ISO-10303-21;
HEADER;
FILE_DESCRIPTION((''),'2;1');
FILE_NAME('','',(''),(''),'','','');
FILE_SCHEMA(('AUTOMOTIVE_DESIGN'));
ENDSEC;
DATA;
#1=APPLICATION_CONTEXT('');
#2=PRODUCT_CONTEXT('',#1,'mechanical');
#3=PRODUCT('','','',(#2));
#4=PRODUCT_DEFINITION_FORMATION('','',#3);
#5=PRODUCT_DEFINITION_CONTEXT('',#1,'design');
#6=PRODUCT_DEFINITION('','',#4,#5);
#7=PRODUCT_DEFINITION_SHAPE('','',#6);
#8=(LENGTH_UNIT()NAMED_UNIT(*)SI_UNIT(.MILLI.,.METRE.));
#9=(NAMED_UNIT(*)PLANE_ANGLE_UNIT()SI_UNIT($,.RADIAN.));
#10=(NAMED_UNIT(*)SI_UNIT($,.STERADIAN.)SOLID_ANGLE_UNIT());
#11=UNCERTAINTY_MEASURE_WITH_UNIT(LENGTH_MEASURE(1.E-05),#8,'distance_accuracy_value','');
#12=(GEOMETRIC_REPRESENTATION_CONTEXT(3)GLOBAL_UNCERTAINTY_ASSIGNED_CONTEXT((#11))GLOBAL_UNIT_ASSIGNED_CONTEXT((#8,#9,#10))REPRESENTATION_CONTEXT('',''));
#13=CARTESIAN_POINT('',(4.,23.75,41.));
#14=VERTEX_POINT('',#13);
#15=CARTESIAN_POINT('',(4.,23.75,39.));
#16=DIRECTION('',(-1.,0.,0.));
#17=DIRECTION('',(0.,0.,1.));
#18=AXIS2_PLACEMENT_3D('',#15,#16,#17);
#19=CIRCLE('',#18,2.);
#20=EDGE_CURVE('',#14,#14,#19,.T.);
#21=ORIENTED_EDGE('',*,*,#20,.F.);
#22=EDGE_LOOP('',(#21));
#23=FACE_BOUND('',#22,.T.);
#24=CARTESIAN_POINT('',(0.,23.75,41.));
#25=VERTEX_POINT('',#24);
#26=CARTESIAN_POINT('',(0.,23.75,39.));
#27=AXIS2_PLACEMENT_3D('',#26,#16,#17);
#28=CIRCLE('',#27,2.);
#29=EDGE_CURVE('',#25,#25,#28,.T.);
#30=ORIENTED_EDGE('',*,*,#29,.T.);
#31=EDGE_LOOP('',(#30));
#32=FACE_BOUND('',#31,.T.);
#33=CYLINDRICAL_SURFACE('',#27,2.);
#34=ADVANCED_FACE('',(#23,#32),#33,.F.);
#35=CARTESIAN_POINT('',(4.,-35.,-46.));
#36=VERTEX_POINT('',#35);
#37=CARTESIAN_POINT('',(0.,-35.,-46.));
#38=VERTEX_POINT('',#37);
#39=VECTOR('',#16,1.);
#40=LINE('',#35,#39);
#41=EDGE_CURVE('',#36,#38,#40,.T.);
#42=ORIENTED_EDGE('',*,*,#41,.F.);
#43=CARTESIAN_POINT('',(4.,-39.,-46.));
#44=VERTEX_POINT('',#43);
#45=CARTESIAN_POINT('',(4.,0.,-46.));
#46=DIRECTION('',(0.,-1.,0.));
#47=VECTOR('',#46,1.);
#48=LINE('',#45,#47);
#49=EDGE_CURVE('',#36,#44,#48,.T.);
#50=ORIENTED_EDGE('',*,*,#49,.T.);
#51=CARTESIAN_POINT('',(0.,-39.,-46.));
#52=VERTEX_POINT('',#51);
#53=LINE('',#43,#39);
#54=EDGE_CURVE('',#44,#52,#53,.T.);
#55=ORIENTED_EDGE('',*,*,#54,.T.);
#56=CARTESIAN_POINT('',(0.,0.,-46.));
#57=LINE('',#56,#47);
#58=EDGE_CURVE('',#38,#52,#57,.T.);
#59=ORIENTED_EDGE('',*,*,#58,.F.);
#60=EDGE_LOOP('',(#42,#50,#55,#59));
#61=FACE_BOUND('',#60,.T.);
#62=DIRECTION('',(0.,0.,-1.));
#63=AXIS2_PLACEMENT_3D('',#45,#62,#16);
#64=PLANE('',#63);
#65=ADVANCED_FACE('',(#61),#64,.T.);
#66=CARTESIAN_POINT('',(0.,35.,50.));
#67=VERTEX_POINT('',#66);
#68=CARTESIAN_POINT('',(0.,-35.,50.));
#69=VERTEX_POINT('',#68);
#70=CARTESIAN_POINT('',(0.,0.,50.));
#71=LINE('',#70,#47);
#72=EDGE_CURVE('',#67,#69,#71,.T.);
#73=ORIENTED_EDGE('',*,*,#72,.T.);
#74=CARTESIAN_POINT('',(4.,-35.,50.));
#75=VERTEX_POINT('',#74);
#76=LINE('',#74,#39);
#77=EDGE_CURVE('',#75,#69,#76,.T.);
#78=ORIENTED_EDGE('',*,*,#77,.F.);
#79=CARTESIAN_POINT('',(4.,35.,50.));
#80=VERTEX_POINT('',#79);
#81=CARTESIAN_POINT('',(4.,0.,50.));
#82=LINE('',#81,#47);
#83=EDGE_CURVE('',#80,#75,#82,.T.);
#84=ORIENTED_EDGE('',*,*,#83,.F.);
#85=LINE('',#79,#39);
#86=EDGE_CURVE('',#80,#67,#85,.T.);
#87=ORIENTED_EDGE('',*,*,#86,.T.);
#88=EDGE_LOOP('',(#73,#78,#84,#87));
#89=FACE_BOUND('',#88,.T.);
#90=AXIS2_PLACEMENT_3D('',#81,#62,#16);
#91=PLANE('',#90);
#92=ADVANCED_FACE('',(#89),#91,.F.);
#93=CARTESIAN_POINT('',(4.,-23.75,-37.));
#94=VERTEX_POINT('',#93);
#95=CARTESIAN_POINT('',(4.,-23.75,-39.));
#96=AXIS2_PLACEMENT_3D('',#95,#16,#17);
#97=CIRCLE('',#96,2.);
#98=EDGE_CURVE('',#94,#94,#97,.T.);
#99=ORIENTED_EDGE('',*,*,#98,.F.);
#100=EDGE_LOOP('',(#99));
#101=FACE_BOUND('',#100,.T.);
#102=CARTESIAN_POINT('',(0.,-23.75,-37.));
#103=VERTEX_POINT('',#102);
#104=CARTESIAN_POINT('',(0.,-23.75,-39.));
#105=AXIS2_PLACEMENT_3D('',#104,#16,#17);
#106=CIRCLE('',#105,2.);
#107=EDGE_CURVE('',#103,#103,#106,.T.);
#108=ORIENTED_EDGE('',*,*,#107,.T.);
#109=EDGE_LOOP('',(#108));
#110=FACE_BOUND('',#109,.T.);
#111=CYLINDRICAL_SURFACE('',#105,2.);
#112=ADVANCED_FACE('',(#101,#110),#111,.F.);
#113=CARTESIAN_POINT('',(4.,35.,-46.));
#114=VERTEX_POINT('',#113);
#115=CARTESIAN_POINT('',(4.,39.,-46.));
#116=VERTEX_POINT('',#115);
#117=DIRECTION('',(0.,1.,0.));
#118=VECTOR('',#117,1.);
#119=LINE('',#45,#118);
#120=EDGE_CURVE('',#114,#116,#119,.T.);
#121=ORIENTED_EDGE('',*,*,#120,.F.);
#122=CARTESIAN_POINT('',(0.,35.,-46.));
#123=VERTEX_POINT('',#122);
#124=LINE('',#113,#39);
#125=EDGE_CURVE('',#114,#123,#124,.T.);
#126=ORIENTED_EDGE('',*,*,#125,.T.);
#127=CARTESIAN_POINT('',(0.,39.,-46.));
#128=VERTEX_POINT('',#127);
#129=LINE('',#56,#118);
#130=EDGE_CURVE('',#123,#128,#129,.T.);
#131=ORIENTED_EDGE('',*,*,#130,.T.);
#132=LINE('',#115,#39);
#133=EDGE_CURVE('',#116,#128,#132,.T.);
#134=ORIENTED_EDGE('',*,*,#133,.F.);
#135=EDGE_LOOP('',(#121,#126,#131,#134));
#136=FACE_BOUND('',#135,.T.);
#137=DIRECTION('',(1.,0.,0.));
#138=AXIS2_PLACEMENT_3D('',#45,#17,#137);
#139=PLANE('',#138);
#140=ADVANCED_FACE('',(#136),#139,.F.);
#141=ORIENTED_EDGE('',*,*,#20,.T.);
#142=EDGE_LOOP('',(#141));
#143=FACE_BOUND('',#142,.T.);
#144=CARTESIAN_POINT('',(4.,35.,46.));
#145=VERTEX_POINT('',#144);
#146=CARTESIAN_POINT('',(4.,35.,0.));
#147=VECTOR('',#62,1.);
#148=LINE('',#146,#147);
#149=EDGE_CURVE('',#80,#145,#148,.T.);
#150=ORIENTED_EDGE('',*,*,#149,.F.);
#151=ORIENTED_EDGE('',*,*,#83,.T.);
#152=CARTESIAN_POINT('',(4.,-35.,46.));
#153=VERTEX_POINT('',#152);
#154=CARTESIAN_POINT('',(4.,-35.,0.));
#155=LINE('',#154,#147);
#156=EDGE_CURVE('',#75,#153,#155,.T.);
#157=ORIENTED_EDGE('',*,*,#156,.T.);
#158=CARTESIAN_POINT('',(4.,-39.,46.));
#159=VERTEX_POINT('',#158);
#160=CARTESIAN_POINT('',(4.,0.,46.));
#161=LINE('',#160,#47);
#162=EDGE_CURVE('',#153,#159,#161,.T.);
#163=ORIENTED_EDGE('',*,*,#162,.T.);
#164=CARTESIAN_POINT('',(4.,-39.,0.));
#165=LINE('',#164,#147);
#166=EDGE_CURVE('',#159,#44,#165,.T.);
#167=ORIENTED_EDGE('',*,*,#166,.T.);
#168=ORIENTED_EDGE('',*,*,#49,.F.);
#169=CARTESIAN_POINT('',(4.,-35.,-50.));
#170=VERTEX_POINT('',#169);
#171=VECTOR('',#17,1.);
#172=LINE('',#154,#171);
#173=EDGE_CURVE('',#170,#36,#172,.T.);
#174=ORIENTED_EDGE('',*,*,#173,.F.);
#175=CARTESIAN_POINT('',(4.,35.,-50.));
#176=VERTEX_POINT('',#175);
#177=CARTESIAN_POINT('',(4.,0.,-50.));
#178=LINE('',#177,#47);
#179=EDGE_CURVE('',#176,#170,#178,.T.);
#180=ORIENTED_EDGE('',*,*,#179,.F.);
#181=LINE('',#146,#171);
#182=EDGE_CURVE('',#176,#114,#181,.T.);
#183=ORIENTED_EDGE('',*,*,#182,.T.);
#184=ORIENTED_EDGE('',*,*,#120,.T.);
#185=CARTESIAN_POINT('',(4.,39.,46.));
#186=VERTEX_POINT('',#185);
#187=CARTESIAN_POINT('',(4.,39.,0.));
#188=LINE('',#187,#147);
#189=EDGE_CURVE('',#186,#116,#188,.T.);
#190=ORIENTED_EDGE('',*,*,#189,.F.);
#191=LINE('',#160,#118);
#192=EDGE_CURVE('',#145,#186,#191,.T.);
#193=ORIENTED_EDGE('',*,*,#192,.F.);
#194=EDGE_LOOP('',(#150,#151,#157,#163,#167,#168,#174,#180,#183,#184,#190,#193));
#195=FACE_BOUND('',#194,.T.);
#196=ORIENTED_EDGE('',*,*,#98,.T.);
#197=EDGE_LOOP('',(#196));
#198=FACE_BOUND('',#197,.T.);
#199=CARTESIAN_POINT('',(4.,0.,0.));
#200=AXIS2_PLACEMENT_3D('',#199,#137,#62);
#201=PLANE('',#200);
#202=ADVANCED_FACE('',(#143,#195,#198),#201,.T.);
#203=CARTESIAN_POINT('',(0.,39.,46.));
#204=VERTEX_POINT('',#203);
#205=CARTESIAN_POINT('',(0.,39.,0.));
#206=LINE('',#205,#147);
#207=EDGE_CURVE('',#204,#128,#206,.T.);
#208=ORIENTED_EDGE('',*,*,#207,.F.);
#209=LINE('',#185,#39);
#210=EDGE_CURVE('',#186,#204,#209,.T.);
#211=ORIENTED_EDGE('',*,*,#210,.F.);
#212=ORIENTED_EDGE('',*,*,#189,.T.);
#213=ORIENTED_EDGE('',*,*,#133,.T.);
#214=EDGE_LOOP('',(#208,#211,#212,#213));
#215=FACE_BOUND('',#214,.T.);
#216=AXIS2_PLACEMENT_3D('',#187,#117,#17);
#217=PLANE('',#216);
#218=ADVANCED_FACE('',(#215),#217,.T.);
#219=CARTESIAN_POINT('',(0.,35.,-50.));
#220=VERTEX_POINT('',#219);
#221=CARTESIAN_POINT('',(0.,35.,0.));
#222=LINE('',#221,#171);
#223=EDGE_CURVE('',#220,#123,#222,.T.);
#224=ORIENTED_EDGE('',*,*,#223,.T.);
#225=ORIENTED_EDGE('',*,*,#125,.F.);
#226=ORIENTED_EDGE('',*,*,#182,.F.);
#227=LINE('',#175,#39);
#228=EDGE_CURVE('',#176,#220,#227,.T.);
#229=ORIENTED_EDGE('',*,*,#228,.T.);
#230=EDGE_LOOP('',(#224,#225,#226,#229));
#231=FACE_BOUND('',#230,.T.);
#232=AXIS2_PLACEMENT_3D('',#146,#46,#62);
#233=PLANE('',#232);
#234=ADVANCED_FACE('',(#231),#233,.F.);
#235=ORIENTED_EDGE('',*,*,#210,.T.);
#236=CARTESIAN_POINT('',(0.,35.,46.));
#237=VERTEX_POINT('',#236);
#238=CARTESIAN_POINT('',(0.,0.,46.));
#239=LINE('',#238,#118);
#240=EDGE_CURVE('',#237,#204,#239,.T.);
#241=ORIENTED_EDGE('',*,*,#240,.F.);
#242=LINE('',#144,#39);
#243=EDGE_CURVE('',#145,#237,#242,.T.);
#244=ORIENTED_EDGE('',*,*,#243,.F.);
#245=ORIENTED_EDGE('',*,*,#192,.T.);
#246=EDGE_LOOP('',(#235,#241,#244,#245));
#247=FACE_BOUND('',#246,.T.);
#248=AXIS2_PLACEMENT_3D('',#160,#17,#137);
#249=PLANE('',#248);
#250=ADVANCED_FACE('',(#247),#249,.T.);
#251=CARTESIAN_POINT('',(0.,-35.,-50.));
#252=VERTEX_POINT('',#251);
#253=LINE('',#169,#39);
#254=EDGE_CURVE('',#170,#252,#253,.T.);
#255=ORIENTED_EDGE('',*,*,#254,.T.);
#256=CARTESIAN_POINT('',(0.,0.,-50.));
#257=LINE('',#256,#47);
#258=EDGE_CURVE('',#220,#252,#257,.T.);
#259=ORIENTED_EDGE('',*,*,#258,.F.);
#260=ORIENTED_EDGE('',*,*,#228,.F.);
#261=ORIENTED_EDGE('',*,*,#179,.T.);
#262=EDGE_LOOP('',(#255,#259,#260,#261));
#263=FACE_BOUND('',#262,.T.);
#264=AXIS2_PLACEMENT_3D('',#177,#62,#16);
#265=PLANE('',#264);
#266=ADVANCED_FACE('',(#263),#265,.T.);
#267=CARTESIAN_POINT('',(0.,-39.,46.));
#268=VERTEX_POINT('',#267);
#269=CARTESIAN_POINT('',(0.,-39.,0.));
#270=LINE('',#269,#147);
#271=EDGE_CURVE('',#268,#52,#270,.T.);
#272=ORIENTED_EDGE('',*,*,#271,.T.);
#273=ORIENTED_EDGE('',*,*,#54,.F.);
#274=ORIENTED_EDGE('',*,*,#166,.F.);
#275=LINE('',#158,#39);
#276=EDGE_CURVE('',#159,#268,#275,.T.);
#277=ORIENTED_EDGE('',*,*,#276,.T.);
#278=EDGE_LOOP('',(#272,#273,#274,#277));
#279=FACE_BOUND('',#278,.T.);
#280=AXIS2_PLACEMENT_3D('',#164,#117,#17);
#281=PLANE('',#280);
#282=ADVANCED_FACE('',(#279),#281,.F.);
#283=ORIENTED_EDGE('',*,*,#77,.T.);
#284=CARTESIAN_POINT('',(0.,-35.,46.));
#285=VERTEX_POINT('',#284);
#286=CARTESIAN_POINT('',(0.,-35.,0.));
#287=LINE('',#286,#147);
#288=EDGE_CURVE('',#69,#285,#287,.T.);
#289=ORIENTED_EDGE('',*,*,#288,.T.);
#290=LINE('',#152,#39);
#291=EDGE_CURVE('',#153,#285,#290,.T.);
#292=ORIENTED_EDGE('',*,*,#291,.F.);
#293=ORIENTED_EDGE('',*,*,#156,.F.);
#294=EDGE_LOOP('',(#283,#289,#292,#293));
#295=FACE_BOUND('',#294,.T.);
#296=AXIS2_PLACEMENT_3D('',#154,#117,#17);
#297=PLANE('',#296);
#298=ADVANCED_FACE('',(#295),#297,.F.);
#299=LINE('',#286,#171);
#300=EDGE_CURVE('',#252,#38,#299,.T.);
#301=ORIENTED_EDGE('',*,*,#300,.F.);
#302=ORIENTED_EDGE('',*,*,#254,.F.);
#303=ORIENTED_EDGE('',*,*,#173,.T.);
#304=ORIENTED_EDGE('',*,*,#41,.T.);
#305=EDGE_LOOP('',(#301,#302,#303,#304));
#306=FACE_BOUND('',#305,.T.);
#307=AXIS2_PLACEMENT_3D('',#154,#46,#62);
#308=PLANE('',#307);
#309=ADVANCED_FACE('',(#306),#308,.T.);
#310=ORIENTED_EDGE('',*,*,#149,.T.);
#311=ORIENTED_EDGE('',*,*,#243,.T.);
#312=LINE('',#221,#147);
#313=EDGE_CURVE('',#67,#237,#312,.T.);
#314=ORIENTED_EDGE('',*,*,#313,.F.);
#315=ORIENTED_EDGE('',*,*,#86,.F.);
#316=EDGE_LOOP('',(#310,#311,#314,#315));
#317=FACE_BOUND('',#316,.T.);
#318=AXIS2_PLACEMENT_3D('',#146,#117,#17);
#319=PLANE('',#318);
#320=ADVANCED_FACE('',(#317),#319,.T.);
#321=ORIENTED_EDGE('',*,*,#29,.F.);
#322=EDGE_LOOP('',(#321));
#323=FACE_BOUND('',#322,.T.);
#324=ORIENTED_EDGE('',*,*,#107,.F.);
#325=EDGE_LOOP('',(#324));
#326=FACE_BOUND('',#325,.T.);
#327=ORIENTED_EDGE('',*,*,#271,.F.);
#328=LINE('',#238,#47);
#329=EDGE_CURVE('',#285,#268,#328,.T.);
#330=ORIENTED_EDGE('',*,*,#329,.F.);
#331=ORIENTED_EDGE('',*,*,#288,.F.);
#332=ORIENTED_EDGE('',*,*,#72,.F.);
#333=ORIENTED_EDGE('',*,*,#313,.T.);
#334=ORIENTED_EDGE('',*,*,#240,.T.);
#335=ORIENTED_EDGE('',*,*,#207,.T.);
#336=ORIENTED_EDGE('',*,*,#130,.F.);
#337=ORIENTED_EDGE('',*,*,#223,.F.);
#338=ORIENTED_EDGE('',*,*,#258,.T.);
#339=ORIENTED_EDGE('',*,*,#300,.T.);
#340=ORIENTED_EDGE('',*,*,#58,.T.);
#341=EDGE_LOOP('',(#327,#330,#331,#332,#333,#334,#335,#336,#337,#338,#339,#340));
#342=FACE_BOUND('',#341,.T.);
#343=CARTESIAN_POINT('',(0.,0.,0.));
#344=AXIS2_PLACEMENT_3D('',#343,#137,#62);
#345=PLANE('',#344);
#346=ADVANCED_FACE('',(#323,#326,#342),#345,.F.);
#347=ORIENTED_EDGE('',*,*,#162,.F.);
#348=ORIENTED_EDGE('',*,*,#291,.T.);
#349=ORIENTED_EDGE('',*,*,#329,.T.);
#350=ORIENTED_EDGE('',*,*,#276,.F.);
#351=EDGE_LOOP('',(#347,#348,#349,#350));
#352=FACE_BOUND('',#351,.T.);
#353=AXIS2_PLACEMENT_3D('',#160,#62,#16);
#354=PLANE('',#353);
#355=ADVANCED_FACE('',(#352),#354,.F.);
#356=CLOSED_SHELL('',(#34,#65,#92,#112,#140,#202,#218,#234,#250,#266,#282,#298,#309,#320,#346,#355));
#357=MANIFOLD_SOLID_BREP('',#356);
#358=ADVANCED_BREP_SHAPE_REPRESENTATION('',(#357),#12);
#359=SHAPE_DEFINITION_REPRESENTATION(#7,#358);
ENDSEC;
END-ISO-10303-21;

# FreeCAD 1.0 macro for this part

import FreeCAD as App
import Part
import Sketcher


def add_polygon(sketch, points):
    """Adds a closed chain of lines whose ends are joined by coincident constraints."""
    first, n = sketch.GeometryCount, len(points)
    for a, b in zip(points, points[1:] + points[:1]):
        sketch.addGeometry(Part.LineSegment(App.Vector(*a, 0), App.Vector(*b, 0)), False)
    for i in range(n):
        sketch.addConstraint(Sketcher.Constraint("Coincident", first + i, 2, first + (i + 1) % n, 1))

doc = App.newDocument("Part")
body = doc.addObject("PartDesign::Body", "Body")

sketch1 = body.newObject("Sketcher::SketchObject", "Sketch")
sketch1.AttachmentSupport = (doc.getObject("YZ_Plane"), [""])
sketch1.MapMode = "FlatFace"
add_polygon(sketch1, [(35, 46), (35, 50), (-35, 50), (-35, 46), (-39, 46), (-39, -46), (-35, -46), (-35, -50), (35, -50), (35, -46), (39, -46), (39, 46)])
sketch1.addConstraint([
    Sketcher.Constraint("Vertical", 0),
    Sketcher.Constraint("Horizontal", 1),
    Sketcher.Constraint("Vertical", 2),
    Sketcher.Constraint("Horizontal", 3),
    Sketcher.Constraint("Vertical", 4),
    Sketcher.Constraint("Horizontal", 5),
    Sketcher.Constraint("Vertical", 6),
    Sketcher.Constraint("Horizontal", 7),
    Sketcher.Constraint("Vertical", 8),
    Sketcher.Constraint("Horizontal", 9),
    Sketcher.Constraint("Vertical", 10),
    Sketcher.Constraint("Horizontal", 11),
    Sketcher.Constraint("Symmetric", 0, 2, 6, 2, -1, 1),
    Sketcher.Constraint("Symmetric", 2, 2, 8, 2, -1, 1),
    Sketcher.Constraint("Symmetric", 4, 2, 10, 2, -1, 1),
    Sketcher.Constraint("Symmetric", 5, 2, 8, 2, -2),
    Sketcher.Constraint("Equal", 11, 0),
    Sketcher.Constraint("DistanceX", 1, 2, 1, 1, 70.0),
    Sketcher.Constraint("DistanceX", 3, 2, 3, 1, 4.0),
    Sketcher.Constraint("DistanceY", 4, 2, 4, 1, 92.0),
])
pad1 = body.newObject("PartDesign::Pad", "Pad")
pad1.Profile = sketch1
pad1.Length = 4

sketch2 = body.newObject("Sketcher::SketchObject", "Sketch001")
sketch2.AttachmentSupport = (doc.getObject("YZ_Plane"), [""])
sketch2.MapMode = "FlatFace"
sketch2.addGeometry([
    Part.Circle(App.Vector(-23.8, -39, 0), App.Vector(0, 0, 1), 2),
    Part.Circle(App.Vector(23.8, 39, 0), App.Vector(0, 0, 1), 2),
], False)
sketch2.addConstraint([
    Sketcher.Constraint("Equal", 0, 1),
    Sketcher.Constraint("Symmetric", 0, 3, 1, 3, -1, 1),
    Sketcher.Constraint("Diameter", 0, 4.0),
    Sketcher.Constraint("DistanceY", 0, 3, -1, 1, 39.0),
    Sketcher.Constraint("DistanceX", 0, 3, 1, 3, 47.5),
])
doc.recompute()
hole = body.newObject("PartDesign::Hole", "Hole")
hole.Profile = sketch2
hole.ThreadType = "None"
hole.Diameter = 4
hole.DepthType = "ThroughAll"
hole.Reversed = True

doc.recompute()
